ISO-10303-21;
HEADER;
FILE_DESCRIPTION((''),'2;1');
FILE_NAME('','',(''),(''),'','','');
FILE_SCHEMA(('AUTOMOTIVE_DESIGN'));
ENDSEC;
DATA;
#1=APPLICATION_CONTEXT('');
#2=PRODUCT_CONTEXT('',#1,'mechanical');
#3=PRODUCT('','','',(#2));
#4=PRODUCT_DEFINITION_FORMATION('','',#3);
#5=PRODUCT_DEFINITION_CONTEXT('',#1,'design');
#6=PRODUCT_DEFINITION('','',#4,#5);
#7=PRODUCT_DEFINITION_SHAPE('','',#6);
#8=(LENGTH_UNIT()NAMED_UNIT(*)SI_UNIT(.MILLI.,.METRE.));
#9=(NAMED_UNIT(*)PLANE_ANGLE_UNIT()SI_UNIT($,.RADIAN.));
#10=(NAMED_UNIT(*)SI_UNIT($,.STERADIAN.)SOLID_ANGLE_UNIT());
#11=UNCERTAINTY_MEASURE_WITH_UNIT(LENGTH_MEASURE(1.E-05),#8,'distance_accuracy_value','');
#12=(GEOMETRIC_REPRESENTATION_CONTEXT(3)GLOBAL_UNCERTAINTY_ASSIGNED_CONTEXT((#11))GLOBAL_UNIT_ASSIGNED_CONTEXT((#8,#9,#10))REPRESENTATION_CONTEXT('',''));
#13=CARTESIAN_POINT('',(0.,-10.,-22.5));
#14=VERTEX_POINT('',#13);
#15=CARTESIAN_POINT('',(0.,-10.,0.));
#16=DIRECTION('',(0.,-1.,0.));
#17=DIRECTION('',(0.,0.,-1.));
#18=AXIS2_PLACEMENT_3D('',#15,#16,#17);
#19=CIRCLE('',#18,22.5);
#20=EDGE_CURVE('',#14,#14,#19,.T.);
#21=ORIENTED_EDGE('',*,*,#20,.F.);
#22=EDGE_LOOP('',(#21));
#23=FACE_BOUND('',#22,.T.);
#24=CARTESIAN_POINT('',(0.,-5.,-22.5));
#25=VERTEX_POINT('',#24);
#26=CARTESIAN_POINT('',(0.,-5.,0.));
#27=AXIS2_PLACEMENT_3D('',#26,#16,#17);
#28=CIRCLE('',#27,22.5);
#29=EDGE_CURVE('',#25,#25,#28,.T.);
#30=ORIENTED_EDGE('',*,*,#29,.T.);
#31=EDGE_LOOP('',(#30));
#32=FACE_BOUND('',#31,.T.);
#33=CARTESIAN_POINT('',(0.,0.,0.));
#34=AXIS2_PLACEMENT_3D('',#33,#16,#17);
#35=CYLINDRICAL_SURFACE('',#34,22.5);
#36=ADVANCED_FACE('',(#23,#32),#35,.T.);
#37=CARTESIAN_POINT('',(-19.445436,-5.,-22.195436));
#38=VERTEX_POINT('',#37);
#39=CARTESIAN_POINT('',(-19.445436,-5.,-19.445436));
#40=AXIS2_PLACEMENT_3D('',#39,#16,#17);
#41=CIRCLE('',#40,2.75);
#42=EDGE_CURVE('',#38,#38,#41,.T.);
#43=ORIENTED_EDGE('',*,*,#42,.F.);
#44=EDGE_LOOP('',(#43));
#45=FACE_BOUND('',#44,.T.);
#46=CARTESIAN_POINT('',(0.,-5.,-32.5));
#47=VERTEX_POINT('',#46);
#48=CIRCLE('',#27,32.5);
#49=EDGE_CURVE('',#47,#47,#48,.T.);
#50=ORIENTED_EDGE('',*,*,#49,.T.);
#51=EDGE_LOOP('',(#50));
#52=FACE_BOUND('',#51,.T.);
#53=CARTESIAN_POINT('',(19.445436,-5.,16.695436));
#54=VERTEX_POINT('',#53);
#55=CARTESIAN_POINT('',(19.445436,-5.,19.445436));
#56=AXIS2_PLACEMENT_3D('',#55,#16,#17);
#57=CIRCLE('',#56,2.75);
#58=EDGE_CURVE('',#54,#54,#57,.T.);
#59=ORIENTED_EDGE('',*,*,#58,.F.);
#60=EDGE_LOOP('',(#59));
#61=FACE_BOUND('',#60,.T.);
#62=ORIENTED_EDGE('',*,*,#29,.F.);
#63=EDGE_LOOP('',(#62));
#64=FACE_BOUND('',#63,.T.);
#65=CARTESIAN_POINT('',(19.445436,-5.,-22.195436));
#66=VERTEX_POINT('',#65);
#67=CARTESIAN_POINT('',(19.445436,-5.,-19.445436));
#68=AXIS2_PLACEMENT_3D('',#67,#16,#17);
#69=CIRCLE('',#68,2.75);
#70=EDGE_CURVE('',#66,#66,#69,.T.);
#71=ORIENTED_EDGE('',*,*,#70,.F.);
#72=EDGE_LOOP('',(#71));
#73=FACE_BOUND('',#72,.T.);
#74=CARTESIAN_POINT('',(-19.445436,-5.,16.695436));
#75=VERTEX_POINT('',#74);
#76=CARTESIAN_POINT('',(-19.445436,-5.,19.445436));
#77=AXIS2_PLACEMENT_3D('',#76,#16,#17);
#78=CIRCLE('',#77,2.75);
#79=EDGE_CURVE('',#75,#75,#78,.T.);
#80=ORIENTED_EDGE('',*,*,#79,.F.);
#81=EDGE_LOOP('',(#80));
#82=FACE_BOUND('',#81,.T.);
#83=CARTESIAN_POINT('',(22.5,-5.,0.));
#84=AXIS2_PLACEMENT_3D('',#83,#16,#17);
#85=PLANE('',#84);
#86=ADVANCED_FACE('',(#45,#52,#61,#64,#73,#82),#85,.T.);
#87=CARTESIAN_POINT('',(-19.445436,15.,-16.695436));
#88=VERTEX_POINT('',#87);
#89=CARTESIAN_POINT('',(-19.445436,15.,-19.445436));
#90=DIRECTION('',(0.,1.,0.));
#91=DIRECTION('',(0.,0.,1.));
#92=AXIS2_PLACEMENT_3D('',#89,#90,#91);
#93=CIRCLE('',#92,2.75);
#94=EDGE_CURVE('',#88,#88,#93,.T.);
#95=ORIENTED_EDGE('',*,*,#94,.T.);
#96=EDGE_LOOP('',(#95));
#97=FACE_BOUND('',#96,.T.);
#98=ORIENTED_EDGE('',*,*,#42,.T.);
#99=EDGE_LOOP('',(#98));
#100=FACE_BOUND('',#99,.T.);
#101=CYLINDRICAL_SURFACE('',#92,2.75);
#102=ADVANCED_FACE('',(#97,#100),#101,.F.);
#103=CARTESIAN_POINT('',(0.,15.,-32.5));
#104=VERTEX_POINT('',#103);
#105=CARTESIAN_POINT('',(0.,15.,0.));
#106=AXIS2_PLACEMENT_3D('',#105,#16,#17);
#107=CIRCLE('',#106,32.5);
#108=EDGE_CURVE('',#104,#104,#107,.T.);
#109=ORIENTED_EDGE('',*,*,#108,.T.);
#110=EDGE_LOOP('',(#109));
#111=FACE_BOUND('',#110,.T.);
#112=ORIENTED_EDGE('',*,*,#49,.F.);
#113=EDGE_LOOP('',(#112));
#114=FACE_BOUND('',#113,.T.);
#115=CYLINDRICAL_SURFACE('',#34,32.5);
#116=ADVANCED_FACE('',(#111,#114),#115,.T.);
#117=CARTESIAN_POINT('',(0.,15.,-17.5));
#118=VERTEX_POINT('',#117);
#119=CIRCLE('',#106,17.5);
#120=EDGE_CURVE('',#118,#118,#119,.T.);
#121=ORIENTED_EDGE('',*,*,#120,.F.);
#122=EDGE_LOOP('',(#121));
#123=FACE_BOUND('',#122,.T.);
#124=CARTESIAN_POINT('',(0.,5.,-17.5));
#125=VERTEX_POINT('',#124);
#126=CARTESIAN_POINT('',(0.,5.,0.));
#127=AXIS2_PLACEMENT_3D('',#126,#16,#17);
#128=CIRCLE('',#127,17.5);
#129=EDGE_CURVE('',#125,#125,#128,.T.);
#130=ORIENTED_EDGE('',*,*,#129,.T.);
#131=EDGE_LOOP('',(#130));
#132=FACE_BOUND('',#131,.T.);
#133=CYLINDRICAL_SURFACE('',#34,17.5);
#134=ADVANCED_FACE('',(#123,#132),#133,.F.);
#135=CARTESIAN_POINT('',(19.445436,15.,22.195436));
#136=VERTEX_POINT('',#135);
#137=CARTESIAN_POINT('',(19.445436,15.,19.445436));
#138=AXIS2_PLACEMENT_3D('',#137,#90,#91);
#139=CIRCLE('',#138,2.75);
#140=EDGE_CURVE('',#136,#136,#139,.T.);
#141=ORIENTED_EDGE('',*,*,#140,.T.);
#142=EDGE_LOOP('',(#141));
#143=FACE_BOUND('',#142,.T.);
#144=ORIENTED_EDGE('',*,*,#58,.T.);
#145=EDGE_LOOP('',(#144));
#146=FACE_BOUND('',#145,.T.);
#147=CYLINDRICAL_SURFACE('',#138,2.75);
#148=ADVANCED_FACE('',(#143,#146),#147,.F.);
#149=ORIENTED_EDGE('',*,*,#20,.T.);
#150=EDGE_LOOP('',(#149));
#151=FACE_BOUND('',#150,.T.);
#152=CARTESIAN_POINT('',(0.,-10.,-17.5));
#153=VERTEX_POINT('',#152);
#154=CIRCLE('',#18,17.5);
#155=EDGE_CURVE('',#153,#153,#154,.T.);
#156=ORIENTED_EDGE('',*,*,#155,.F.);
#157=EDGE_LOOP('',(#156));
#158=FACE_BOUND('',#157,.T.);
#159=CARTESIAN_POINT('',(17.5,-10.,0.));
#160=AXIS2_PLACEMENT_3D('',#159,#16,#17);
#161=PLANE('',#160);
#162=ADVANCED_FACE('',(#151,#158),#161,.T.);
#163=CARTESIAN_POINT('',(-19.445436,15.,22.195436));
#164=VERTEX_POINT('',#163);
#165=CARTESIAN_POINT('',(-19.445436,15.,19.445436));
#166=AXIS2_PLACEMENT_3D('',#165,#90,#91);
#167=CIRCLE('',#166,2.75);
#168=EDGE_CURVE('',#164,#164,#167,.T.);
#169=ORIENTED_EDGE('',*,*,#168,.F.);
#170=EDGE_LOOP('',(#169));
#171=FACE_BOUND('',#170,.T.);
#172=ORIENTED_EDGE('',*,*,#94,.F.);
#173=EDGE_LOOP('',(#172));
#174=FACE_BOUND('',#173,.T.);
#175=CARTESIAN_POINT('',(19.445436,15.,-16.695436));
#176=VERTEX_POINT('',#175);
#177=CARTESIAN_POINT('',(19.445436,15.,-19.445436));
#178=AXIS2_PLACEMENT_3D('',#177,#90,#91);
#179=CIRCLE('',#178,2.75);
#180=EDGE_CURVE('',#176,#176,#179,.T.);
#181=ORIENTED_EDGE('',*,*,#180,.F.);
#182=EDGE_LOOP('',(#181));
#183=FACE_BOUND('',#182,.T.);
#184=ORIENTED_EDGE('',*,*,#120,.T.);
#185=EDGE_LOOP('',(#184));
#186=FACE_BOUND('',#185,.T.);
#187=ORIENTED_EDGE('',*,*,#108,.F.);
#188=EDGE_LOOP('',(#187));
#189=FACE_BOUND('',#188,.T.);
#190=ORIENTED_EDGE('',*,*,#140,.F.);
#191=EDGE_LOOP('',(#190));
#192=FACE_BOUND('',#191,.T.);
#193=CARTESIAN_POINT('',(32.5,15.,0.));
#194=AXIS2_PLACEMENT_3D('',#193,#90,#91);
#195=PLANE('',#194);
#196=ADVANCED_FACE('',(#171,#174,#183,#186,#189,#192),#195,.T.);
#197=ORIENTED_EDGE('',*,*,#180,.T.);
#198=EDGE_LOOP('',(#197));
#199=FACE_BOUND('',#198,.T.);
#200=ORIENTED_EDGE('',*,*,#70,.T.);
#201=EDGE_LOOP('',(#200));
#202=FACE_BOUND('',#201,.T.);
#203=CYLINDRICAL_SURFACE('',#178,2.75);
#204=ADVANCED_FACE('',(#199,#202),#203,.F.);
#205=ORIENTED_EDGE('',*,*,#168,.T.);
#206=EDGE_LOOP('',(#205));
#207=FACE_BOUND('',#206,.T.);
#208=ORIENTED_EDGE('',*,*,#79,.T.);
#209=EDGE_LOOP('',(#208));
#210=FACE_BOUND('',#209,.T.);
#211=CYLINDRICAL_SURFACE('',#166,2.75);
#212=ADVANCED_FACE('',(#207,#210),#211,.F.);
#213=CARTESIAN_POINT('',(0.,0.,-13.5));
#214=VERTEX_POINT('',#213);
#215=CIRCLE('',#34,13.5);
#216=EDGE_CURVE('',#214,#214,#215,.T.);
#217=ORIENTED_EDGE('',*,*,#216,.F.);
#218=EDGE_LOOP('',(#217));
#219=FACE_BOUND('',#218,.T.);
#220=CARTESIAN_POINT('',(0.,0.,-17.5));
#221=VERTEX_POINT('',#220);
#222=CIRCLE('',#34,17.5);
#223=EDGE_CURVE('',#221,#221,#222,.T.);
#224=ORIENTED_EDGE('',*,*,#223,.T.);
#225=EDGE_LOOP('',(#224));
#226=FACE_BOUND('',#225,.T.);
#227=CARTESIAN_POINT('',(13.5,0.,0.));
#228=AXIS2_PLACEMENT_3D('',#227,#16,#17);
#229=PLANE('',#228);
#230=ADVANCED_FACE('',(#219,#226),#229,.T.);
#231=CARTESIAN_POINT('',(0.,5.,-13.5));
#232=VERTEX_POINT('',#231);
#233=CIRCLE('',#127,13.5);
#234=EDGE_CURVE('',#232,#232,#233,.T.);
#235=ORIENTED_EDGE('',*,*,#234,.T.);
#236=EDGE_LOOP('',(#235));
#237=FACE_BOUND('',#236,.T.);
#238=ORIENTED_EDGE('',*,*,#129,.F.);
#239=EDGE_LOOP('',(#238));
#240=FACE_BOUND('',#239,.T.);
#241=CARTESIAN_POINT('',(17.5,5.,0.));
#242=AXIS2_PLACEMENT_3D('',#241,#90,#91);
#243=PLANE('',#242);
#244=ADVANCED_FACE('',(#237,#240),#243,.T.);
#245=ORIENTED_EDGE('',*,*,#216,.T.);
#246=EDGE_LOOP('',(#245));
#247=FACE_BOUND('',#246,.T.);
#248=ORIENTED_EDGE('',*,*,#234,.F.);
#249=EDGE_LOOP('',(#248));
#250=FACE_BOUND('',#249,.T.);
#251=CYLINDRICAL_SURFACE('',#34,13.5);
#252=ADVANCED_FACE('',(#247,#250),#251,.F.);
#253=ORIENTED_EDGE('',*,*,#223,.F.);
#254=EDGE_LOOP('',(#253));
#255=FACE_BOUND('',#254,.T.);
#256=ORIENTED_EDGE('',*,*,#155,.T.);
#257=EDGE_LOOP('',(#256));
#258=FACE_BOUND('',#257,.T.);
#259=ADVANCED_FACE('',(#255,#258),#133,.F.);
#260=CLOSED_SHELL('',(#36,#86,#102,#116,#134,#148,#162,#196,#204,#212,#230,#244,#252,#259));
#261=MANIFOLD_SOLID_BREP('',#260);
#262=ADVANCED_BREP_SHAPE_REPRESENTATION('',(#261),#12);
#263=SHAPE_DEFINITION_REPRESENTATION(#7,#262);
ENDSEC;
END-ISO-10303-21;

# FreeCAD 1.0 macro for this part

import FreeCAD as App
import Part
import Sketcher

doc = App.newDocument("Part")
body = doc.addObject("PartDesign::Body", "Body")

# Sketch on XY plane
sketch1 = body.newObject("Sketcher::SketchObject", "Sketch")
sketch1.AttachmentSupport = (doc.getObject("XY_Plane"), [""])
sketch1.MapMode = "FlatFace"
sketch1.addGeometry(Part.LineSegment(App.Vector(13.5, 5, 0), App.Vector(13.5, 0, 0)), False)
sketch1.addGeometry(Part.LineSegment(App.Vector(13.5, 0, 0), App.Vector(17.5, 0, 0)), False)
sketch1.addGeometry(Part.LineSegment(App.Vector(17.5, 0, 0), App.Vector(17.5, -10, 0)), False)
sketch1.addGeometry(Part.LineSegment(App.Vector(17.5, -10, 0), App.Vector(22.5, -10, 0)), False)
sketch1.addGeometry(Part.LineSegment(App.Vector(22.5, -10, 0), App.Vector(22.5, -5, 0)), False)
sketch1.addGeometry(Part.LineSegment(App.Vector(22.5, -5, 0), App.Vector(32.5, -5, 0)), False)
sketch1.addGeometry(Part.LineSegment(App.Vector(32.5, -5, 0), App.Vector(32.5, 15, 0)), False)
sketch1.addGeometry(Part.LineSegment(App.Vector(32.5, 15, 0), App.Vector(17.5, 15, 0)), False)
sketch1.addGeometry(Part.LineSegment(App.Vector(17.5, 15, 0), App.Vector(17.5, 5, 0)), False)
sketch1.addGeometry(Part.LineSegment(App.Vector(17.5, 5, 0), App.Vector(13.5, 5, 0)), False)
sketch1.addConstraint(Sketcher.Constraint("Coincident", 0, 2, 1, 1))
sketch1.addConstraint(Sketcher.Constraint("Coincident", 1, 2, 2, 1))
sketch1.addConstraint(Sketcher.Constraint("Coincident", 2, 2, 3, 1))
sketch1.addConstraint(Sketcher.Constraint("Coincident", 3, 2, 4, 1))
sketch1.addConstraint(Sketcher.Constraint("Coincident", 4, 2, 5, 1))
sketch1.addConstraint(Sketcher.Constraint("Coincident", 5, 2, 6, 1))
sketch1.addConstraint(Sketcher.Constraint("Coincident", 6, 2, 7, 1))
sketch1.addConstraint(Sketcher.Constraint("Coincident", 7, 2, 8, 1))
sketch1.addConstraint(Sketcher.Constraint("Coincident", 8, 2, 9, 1))
sketch1.addConstraint(Sketcher.Constraint("Coincident", 9, 2, 0, 1))
sketch1.addConstraint(Sketcher.Constraint("Vertical", 0))
sketch1.addConstraint(Sketcher.Constraint("Horizontal", 1))
sketch1.addConstraint(Sketcher.Constraint("Vertical", 2))
sketch1.addConstraint(Sketcher.Constraint("Horizontal", 3))
sketch1.addConstraint(Sketcher.Constraint("Vertical", 4))
sketch1.addConstraint(Sketcher.Constraint("Horizontal", 5))
sketch1.addConstraint(Sketcher.Constraint("Vertical", 6))
sketch1.addConstraint(Sketcher.Constraint("Horizontal", 7))
sketch1.addConstraint(Sketcher.Constraint("Vertical", 8))
sketch1.addConstraint(Sketcher.Constraint("Horizontal", 9))
sketch1.addConstraint(Sketcher.Constraint("PointOnObject", 0, 2, -1))
sketch1.addConstraint(Sketcher.Constraint("Vertical", 2, 2, 7, 2))
sketch1.addConstraint(Sketcher.Constraint("Equal", 3, 0))
sketch1.addConstraint(Sketcher.Constraint("Equal", 5, 2))
sketch1.addConstraint(Sketcher.Constraint("Equal", 0, 4))
sketch1.addConstraint(Sketcher.Constraint("Equal", 2, 8))
sketch1.addConstraint(Sketcher.Constraint("DistanceX", 1, 1, 1, 2, 4.0))
sketch1.addConstraint(Sketcher.Constraint("DistanceX", 3, 1, 3, 2, 5.0))
sketch1.addConstraint(Sketcher.Constraint("DistanceX", 5, 1, 5, 2, 10.0))
sketch1.addConstraint(Sketcher.Constraint("DistanceX", -1, 1, 0, 2, 13.5))
revolution = body.newObject("PartDesign::Revolution", "Revolution")
revolution.Profile = sketch1
revolution.ReferenceAxis = (sketch1, ["V_Axis"])
revolution.Angle = 360

# Sketch on XZ plane
sketch2 = body.newObject("Sketcher::SketchObject", "Sketch001")
sketch2.AttachmentSupport = (doc.getObject("XZ_Plane"), [""])
sketch2.MapMode = "FlatFace"
sketch2.AttachmentOffset = App.Placement(App.Vector(0, 0, -15), App.Rotation())
sketch2.addGeometry(Part.Circle(App.Vector(-19.4, 19.4, 0), App.Vector(0, 0, 1), 2.8), False)
sketch2.addGeometry(Part.Circle(App.Vector(-19.4, -19.4, 0), App.Vector(0, 0, 1), 2.8), False)
sketch2.addGeometry(Part.Circle(App.Vector(19.4, -19.4, 0), App.Vector(0, 0, 1), 2.8), False)
sketch2.addGeometry(Part.Circle(App.Vector(19.4, 19.4, 0), App.Vector(0, 0, 1), 2.8), False)
sketch2.addConstraint(Sketcher.Constraint("Equal", 0, 1))
sketch2.addConstraint(Sketcher.Constraint("Equal", 1, 2))
sketch2.addConstraint(Sketcher.Constraint("Equal", 2, 3))
sketch2.addConstraint(Sketcher.Constraint("Symmetric", 0, 3, 2, 3, -1, 1))
sketch2.addConstraint(Sketcher.Constraint("Symmetric", 1, 3, 3, 3, -1, 1))
sketch2.addConstraint(Sketcher.Constraint("Symmetric", 1, 3, 2, 3, -2))
sketch2.addConstraint(Sketcher.Constraint("Diameter", 0, 5.5))
sketch2.addConstraint(Sketcher.Constraint("DistanceX", 0, 3, -1, 1, 19.445436))
sketch2.addConstraint(Sketcher.Constraint("DistanceY", -1, 1, 0, 3, 19.445436))
doc.recompute()
hole = body.newObject("PartDesign::Hole", "Hole")
hole.Profile = sketch2
hole.ThreadType = "None"
hole.Diameter = 5.5
hole.DepthType = "ThroughAll"
hole.Reversed = True

doc.recompute()
